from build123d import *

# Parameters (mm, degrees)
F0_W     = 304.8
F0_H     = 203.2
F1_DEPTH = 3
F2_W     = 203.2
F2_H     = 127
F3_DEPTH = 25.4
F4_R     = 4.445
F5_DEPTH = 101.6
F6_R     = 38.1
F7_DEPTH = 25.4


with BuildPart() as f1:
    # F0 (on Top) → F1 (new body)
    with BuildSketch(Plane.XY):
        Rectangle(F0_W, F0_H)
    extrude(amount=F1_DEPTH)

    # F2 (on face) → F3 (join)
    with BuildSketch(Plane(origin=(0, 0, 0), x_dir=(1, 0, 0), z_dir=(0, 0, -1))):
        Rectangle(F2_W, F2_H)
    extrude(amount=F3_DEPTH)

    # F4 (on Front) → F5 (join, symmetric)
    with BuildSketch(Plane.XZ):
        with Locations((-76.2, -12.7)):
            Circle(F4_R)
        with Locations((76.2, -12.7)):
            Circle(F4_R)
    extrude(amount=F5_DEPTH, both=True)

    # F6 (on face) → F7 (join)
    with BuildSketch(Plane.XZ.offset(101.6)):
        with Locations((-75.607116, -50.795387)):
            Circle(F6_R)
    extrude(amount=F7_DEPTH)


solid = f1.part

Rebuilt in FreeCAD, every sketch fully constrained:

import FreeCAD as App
import Part
import Sketcher

V = App.Vector
Q = App.Units.Quantity

doc = App.newDocument("Part")
params = doc.addObject("Spreadsheet::Sheet", "Params")
for row, (alias, value) in enumerate([
    ("sketch1_width", "12 in"),
    ("sketch1_height", "8 in"),
    ("pad1_length", "3 mm"),
    ("sketch2_width", "8 in"),
    ("sketch2_height", "5 in"),
    ("pad2_length", "1 in"),
    ("sketch3_diameter", "0.35 in"),
    ("pad3_length", "8 in"),
    ("sketch4_diameter", "3 in"),
    ("pad4_length", "1 in"),
], start=1):
    params.set(f"A{row}", alias)
    params.set(f"B{row}", "=" + value)
    params.setAlias(f"B{row}", alias)

body = doc.addObject("PartDesign::Body", "Body")

# Sketch on XY plane
sketch1 = body.newObject("Sketcher::SketchObject", "Sketch")
sketch1.AttachmentSupport = (doc.getObject("XY_Plane"), [""])
sketch1.MapMode = "FlatFace"
sketch1.addGeometry([
    Part.LineSegment(V(-152.4, 101.6, 0), V(-152.4, -101.6, 0)),
    Part.LineSegment(V(-152.4, -101.6, 0), V(152.4, -101.6, 0)),
    Part.LineSegment(V(152.4, -101.6, 0), V(152.4, 101.6, 0)),
    Part.LineSegment(V(152.4, 101.6, 0), V(-152.4, 101.6, 0)),
], False)
sketch1.addConstraint([
    Sketcher.Constraint("Coincident", 0, 2, 1, 1),
    Sketcher.Constraint("Coincident", 1, 2, 2, 1),
    Sketcher.Constraint("Coincident", 2, 2, 3, 1),
    Sketcher.Constraint("Coincident", 3, 2, 0, 1),
    Sketcher.Constraint("Vertical", 0),
    Sketcher.Constraint("Horizontal", 1),
    Sketcher.Constraint("Vertical", 2),
    Sketcher.Constraint("Horizontal", 3),
    Sketcher.Constraint("Symmetric", 0, 2, 2, 2, -1, 1),
    Sketcher.Constraint("DistanceX", 1, 1, 1, 2, Q("12 in")),
    Sketcher.Constraint("DistanceY", 0, 2, 0, 1, Q("8 in")),
])
sketch1.setExpression("Constraints[9]", "Params.sketch1_width")
sketch1.setExpression("Constraints[10]", "Params.sketch1_height")
pad1 = body.newObject("PartDesign::Pad", "Pad")
pad1.Profile = sketch1
pad1.setExpression("Length", "Params.pad1_length")

# Sketch on XY plane
sketch2 = body.newObject("Sketcher::SketchObject", "Sketch001")
sketch2.AttachmentSupport = (doc.getObject("XY_Plane"), [""])
sketch2.MapMode = "FlatFace"
sketch2.addGeometry([
    Part.LineSegment(V(-101.6, -63.5, 0), V(-101.6, 63.5, 0)),
    Part.LineSegment(V(-101.6, 63.5, 0), V(101.6, 63.5, 0)),
    Part.LineSegment(V(101.6, 63.5, 0), V(101.6, -63.5, 0)),
    Part.LineSegment(V(101.6, -63.5, 0), V(-101.6, -63.5, 0)),
], False)
sketch2.addConstraint([
    Sketcher.Constraint("Coincident", 0, 2, 1, 1),
    Sketcher.Constraint("Coincident", 1, 2, 2, 1),
    Sketcher.Constraint("Coincident", 2, 2, 3, 1),
    Sketcher.Constraint("Coincident", 3, 2, 0, 1),
    Sketcher.Constraint("Vertical", 0),
    Sketcher.Constraint("Horizontal", 1),
    Sketcher.Constraint("Vertical", 2),
    Sketcher.Constraint("Horizontal", 3),
    Sketcher.Constraint("Symmetric", 0, 2, 2, 2, -1, 1),
    Sketcher.Constraint("DistanceX", 1, 1, 1, 2, Q("8 in")),
    Sketcher.Constraint("DistanceY", 0, 1, 0, 2, Q("5 in")),
])
sketch2.setExpression("Constraints[9]", "Params.sketch2_width")
sketch2.setExpression("Constraints[10]", "Params.sketch2_height")
pad2 = body.newObject("PartDesign::Pad", "Pad001")
pad2.Profile = sketch2
pad2.setExpression("Length", "Params.pad2_length")
pad2.Reversed = True

# Sketch on XZ plane
sketch3 = body.newObject("Sketcher::SketchObject", "Sketch002")
sketch3.AttachmentSupport = (doc.getObject("XZ_Plane"), [""])
sketch3.MapMode = "FlatFace"
sketch3.addGeometry([
    Part.Circle(V(-76.2, -12.7, 0), V(0, 0, 1), 4.445),
    Part.Circle(V(76.2, -12.7, 0), V(0, 0, 1), 4.445),
], False)
sketch3.addConstraint([
    Sketcher.Constraint("Equal", 0, 1),
    Sketcher.Constraint("Symmetric", 0, 3, 1, 3, -2),
    Sketcher.Constraint("Diameter", 0, Q("0.35 in")),
    Sketcher.Constraint("DistanceX", 0, 3, -1, 1, Q("3 in")),
    Sketcher.Constraint("DistanceY", 0, 3, -1, 1, Q("0.5 in")),
])
sketch3.setExpression("Constraints[2]", "Params.sketch3_diameter")
pad3 = body.newObject("PartDesign::Pad", "Pad002")
pad3.Profile = sketch3
pad3.setExpression("Length", "Params.pad3_length")
pad3.Midplane = True

# Sketch on XZ plane
sketch4 = body.newObject("Sketcher::SketchObject", "Sketch003")
sketch4.AttachmentSupport = (doc.getObject("XZ_Plane"), [""])
sketch4.MapMode = "FlatFace"
sketch4.AttachmentOffset = App.Placement(V(0, 0, 4 * 25.4), App.Rotation())
sketch4.addGeometry(Part.Circle(V(-75.607116, -50.795387, 0), V(0, 0, 1), 38.1), False)
sketch4.addConstraint([
    Sketcher.Constraint("Diameter", 0, Q("3 in")),
    Sketcher.Constraint("DistanceX", 0, 3, -1, 1, 75.607116),
    Sketcher.Constraint("DistanceY", 0, 3, -1, 1, 50.795387),
])
sketch4.setExpression("Constraints[0]", "Params.sketch4_diameter")
pad4 = body.newObject("PartDesign::Pad", "Pad003")
pad4.Profile = sketch4
pad4.setExpression("Length", "Params.pad4_length")

doc.recompute()
